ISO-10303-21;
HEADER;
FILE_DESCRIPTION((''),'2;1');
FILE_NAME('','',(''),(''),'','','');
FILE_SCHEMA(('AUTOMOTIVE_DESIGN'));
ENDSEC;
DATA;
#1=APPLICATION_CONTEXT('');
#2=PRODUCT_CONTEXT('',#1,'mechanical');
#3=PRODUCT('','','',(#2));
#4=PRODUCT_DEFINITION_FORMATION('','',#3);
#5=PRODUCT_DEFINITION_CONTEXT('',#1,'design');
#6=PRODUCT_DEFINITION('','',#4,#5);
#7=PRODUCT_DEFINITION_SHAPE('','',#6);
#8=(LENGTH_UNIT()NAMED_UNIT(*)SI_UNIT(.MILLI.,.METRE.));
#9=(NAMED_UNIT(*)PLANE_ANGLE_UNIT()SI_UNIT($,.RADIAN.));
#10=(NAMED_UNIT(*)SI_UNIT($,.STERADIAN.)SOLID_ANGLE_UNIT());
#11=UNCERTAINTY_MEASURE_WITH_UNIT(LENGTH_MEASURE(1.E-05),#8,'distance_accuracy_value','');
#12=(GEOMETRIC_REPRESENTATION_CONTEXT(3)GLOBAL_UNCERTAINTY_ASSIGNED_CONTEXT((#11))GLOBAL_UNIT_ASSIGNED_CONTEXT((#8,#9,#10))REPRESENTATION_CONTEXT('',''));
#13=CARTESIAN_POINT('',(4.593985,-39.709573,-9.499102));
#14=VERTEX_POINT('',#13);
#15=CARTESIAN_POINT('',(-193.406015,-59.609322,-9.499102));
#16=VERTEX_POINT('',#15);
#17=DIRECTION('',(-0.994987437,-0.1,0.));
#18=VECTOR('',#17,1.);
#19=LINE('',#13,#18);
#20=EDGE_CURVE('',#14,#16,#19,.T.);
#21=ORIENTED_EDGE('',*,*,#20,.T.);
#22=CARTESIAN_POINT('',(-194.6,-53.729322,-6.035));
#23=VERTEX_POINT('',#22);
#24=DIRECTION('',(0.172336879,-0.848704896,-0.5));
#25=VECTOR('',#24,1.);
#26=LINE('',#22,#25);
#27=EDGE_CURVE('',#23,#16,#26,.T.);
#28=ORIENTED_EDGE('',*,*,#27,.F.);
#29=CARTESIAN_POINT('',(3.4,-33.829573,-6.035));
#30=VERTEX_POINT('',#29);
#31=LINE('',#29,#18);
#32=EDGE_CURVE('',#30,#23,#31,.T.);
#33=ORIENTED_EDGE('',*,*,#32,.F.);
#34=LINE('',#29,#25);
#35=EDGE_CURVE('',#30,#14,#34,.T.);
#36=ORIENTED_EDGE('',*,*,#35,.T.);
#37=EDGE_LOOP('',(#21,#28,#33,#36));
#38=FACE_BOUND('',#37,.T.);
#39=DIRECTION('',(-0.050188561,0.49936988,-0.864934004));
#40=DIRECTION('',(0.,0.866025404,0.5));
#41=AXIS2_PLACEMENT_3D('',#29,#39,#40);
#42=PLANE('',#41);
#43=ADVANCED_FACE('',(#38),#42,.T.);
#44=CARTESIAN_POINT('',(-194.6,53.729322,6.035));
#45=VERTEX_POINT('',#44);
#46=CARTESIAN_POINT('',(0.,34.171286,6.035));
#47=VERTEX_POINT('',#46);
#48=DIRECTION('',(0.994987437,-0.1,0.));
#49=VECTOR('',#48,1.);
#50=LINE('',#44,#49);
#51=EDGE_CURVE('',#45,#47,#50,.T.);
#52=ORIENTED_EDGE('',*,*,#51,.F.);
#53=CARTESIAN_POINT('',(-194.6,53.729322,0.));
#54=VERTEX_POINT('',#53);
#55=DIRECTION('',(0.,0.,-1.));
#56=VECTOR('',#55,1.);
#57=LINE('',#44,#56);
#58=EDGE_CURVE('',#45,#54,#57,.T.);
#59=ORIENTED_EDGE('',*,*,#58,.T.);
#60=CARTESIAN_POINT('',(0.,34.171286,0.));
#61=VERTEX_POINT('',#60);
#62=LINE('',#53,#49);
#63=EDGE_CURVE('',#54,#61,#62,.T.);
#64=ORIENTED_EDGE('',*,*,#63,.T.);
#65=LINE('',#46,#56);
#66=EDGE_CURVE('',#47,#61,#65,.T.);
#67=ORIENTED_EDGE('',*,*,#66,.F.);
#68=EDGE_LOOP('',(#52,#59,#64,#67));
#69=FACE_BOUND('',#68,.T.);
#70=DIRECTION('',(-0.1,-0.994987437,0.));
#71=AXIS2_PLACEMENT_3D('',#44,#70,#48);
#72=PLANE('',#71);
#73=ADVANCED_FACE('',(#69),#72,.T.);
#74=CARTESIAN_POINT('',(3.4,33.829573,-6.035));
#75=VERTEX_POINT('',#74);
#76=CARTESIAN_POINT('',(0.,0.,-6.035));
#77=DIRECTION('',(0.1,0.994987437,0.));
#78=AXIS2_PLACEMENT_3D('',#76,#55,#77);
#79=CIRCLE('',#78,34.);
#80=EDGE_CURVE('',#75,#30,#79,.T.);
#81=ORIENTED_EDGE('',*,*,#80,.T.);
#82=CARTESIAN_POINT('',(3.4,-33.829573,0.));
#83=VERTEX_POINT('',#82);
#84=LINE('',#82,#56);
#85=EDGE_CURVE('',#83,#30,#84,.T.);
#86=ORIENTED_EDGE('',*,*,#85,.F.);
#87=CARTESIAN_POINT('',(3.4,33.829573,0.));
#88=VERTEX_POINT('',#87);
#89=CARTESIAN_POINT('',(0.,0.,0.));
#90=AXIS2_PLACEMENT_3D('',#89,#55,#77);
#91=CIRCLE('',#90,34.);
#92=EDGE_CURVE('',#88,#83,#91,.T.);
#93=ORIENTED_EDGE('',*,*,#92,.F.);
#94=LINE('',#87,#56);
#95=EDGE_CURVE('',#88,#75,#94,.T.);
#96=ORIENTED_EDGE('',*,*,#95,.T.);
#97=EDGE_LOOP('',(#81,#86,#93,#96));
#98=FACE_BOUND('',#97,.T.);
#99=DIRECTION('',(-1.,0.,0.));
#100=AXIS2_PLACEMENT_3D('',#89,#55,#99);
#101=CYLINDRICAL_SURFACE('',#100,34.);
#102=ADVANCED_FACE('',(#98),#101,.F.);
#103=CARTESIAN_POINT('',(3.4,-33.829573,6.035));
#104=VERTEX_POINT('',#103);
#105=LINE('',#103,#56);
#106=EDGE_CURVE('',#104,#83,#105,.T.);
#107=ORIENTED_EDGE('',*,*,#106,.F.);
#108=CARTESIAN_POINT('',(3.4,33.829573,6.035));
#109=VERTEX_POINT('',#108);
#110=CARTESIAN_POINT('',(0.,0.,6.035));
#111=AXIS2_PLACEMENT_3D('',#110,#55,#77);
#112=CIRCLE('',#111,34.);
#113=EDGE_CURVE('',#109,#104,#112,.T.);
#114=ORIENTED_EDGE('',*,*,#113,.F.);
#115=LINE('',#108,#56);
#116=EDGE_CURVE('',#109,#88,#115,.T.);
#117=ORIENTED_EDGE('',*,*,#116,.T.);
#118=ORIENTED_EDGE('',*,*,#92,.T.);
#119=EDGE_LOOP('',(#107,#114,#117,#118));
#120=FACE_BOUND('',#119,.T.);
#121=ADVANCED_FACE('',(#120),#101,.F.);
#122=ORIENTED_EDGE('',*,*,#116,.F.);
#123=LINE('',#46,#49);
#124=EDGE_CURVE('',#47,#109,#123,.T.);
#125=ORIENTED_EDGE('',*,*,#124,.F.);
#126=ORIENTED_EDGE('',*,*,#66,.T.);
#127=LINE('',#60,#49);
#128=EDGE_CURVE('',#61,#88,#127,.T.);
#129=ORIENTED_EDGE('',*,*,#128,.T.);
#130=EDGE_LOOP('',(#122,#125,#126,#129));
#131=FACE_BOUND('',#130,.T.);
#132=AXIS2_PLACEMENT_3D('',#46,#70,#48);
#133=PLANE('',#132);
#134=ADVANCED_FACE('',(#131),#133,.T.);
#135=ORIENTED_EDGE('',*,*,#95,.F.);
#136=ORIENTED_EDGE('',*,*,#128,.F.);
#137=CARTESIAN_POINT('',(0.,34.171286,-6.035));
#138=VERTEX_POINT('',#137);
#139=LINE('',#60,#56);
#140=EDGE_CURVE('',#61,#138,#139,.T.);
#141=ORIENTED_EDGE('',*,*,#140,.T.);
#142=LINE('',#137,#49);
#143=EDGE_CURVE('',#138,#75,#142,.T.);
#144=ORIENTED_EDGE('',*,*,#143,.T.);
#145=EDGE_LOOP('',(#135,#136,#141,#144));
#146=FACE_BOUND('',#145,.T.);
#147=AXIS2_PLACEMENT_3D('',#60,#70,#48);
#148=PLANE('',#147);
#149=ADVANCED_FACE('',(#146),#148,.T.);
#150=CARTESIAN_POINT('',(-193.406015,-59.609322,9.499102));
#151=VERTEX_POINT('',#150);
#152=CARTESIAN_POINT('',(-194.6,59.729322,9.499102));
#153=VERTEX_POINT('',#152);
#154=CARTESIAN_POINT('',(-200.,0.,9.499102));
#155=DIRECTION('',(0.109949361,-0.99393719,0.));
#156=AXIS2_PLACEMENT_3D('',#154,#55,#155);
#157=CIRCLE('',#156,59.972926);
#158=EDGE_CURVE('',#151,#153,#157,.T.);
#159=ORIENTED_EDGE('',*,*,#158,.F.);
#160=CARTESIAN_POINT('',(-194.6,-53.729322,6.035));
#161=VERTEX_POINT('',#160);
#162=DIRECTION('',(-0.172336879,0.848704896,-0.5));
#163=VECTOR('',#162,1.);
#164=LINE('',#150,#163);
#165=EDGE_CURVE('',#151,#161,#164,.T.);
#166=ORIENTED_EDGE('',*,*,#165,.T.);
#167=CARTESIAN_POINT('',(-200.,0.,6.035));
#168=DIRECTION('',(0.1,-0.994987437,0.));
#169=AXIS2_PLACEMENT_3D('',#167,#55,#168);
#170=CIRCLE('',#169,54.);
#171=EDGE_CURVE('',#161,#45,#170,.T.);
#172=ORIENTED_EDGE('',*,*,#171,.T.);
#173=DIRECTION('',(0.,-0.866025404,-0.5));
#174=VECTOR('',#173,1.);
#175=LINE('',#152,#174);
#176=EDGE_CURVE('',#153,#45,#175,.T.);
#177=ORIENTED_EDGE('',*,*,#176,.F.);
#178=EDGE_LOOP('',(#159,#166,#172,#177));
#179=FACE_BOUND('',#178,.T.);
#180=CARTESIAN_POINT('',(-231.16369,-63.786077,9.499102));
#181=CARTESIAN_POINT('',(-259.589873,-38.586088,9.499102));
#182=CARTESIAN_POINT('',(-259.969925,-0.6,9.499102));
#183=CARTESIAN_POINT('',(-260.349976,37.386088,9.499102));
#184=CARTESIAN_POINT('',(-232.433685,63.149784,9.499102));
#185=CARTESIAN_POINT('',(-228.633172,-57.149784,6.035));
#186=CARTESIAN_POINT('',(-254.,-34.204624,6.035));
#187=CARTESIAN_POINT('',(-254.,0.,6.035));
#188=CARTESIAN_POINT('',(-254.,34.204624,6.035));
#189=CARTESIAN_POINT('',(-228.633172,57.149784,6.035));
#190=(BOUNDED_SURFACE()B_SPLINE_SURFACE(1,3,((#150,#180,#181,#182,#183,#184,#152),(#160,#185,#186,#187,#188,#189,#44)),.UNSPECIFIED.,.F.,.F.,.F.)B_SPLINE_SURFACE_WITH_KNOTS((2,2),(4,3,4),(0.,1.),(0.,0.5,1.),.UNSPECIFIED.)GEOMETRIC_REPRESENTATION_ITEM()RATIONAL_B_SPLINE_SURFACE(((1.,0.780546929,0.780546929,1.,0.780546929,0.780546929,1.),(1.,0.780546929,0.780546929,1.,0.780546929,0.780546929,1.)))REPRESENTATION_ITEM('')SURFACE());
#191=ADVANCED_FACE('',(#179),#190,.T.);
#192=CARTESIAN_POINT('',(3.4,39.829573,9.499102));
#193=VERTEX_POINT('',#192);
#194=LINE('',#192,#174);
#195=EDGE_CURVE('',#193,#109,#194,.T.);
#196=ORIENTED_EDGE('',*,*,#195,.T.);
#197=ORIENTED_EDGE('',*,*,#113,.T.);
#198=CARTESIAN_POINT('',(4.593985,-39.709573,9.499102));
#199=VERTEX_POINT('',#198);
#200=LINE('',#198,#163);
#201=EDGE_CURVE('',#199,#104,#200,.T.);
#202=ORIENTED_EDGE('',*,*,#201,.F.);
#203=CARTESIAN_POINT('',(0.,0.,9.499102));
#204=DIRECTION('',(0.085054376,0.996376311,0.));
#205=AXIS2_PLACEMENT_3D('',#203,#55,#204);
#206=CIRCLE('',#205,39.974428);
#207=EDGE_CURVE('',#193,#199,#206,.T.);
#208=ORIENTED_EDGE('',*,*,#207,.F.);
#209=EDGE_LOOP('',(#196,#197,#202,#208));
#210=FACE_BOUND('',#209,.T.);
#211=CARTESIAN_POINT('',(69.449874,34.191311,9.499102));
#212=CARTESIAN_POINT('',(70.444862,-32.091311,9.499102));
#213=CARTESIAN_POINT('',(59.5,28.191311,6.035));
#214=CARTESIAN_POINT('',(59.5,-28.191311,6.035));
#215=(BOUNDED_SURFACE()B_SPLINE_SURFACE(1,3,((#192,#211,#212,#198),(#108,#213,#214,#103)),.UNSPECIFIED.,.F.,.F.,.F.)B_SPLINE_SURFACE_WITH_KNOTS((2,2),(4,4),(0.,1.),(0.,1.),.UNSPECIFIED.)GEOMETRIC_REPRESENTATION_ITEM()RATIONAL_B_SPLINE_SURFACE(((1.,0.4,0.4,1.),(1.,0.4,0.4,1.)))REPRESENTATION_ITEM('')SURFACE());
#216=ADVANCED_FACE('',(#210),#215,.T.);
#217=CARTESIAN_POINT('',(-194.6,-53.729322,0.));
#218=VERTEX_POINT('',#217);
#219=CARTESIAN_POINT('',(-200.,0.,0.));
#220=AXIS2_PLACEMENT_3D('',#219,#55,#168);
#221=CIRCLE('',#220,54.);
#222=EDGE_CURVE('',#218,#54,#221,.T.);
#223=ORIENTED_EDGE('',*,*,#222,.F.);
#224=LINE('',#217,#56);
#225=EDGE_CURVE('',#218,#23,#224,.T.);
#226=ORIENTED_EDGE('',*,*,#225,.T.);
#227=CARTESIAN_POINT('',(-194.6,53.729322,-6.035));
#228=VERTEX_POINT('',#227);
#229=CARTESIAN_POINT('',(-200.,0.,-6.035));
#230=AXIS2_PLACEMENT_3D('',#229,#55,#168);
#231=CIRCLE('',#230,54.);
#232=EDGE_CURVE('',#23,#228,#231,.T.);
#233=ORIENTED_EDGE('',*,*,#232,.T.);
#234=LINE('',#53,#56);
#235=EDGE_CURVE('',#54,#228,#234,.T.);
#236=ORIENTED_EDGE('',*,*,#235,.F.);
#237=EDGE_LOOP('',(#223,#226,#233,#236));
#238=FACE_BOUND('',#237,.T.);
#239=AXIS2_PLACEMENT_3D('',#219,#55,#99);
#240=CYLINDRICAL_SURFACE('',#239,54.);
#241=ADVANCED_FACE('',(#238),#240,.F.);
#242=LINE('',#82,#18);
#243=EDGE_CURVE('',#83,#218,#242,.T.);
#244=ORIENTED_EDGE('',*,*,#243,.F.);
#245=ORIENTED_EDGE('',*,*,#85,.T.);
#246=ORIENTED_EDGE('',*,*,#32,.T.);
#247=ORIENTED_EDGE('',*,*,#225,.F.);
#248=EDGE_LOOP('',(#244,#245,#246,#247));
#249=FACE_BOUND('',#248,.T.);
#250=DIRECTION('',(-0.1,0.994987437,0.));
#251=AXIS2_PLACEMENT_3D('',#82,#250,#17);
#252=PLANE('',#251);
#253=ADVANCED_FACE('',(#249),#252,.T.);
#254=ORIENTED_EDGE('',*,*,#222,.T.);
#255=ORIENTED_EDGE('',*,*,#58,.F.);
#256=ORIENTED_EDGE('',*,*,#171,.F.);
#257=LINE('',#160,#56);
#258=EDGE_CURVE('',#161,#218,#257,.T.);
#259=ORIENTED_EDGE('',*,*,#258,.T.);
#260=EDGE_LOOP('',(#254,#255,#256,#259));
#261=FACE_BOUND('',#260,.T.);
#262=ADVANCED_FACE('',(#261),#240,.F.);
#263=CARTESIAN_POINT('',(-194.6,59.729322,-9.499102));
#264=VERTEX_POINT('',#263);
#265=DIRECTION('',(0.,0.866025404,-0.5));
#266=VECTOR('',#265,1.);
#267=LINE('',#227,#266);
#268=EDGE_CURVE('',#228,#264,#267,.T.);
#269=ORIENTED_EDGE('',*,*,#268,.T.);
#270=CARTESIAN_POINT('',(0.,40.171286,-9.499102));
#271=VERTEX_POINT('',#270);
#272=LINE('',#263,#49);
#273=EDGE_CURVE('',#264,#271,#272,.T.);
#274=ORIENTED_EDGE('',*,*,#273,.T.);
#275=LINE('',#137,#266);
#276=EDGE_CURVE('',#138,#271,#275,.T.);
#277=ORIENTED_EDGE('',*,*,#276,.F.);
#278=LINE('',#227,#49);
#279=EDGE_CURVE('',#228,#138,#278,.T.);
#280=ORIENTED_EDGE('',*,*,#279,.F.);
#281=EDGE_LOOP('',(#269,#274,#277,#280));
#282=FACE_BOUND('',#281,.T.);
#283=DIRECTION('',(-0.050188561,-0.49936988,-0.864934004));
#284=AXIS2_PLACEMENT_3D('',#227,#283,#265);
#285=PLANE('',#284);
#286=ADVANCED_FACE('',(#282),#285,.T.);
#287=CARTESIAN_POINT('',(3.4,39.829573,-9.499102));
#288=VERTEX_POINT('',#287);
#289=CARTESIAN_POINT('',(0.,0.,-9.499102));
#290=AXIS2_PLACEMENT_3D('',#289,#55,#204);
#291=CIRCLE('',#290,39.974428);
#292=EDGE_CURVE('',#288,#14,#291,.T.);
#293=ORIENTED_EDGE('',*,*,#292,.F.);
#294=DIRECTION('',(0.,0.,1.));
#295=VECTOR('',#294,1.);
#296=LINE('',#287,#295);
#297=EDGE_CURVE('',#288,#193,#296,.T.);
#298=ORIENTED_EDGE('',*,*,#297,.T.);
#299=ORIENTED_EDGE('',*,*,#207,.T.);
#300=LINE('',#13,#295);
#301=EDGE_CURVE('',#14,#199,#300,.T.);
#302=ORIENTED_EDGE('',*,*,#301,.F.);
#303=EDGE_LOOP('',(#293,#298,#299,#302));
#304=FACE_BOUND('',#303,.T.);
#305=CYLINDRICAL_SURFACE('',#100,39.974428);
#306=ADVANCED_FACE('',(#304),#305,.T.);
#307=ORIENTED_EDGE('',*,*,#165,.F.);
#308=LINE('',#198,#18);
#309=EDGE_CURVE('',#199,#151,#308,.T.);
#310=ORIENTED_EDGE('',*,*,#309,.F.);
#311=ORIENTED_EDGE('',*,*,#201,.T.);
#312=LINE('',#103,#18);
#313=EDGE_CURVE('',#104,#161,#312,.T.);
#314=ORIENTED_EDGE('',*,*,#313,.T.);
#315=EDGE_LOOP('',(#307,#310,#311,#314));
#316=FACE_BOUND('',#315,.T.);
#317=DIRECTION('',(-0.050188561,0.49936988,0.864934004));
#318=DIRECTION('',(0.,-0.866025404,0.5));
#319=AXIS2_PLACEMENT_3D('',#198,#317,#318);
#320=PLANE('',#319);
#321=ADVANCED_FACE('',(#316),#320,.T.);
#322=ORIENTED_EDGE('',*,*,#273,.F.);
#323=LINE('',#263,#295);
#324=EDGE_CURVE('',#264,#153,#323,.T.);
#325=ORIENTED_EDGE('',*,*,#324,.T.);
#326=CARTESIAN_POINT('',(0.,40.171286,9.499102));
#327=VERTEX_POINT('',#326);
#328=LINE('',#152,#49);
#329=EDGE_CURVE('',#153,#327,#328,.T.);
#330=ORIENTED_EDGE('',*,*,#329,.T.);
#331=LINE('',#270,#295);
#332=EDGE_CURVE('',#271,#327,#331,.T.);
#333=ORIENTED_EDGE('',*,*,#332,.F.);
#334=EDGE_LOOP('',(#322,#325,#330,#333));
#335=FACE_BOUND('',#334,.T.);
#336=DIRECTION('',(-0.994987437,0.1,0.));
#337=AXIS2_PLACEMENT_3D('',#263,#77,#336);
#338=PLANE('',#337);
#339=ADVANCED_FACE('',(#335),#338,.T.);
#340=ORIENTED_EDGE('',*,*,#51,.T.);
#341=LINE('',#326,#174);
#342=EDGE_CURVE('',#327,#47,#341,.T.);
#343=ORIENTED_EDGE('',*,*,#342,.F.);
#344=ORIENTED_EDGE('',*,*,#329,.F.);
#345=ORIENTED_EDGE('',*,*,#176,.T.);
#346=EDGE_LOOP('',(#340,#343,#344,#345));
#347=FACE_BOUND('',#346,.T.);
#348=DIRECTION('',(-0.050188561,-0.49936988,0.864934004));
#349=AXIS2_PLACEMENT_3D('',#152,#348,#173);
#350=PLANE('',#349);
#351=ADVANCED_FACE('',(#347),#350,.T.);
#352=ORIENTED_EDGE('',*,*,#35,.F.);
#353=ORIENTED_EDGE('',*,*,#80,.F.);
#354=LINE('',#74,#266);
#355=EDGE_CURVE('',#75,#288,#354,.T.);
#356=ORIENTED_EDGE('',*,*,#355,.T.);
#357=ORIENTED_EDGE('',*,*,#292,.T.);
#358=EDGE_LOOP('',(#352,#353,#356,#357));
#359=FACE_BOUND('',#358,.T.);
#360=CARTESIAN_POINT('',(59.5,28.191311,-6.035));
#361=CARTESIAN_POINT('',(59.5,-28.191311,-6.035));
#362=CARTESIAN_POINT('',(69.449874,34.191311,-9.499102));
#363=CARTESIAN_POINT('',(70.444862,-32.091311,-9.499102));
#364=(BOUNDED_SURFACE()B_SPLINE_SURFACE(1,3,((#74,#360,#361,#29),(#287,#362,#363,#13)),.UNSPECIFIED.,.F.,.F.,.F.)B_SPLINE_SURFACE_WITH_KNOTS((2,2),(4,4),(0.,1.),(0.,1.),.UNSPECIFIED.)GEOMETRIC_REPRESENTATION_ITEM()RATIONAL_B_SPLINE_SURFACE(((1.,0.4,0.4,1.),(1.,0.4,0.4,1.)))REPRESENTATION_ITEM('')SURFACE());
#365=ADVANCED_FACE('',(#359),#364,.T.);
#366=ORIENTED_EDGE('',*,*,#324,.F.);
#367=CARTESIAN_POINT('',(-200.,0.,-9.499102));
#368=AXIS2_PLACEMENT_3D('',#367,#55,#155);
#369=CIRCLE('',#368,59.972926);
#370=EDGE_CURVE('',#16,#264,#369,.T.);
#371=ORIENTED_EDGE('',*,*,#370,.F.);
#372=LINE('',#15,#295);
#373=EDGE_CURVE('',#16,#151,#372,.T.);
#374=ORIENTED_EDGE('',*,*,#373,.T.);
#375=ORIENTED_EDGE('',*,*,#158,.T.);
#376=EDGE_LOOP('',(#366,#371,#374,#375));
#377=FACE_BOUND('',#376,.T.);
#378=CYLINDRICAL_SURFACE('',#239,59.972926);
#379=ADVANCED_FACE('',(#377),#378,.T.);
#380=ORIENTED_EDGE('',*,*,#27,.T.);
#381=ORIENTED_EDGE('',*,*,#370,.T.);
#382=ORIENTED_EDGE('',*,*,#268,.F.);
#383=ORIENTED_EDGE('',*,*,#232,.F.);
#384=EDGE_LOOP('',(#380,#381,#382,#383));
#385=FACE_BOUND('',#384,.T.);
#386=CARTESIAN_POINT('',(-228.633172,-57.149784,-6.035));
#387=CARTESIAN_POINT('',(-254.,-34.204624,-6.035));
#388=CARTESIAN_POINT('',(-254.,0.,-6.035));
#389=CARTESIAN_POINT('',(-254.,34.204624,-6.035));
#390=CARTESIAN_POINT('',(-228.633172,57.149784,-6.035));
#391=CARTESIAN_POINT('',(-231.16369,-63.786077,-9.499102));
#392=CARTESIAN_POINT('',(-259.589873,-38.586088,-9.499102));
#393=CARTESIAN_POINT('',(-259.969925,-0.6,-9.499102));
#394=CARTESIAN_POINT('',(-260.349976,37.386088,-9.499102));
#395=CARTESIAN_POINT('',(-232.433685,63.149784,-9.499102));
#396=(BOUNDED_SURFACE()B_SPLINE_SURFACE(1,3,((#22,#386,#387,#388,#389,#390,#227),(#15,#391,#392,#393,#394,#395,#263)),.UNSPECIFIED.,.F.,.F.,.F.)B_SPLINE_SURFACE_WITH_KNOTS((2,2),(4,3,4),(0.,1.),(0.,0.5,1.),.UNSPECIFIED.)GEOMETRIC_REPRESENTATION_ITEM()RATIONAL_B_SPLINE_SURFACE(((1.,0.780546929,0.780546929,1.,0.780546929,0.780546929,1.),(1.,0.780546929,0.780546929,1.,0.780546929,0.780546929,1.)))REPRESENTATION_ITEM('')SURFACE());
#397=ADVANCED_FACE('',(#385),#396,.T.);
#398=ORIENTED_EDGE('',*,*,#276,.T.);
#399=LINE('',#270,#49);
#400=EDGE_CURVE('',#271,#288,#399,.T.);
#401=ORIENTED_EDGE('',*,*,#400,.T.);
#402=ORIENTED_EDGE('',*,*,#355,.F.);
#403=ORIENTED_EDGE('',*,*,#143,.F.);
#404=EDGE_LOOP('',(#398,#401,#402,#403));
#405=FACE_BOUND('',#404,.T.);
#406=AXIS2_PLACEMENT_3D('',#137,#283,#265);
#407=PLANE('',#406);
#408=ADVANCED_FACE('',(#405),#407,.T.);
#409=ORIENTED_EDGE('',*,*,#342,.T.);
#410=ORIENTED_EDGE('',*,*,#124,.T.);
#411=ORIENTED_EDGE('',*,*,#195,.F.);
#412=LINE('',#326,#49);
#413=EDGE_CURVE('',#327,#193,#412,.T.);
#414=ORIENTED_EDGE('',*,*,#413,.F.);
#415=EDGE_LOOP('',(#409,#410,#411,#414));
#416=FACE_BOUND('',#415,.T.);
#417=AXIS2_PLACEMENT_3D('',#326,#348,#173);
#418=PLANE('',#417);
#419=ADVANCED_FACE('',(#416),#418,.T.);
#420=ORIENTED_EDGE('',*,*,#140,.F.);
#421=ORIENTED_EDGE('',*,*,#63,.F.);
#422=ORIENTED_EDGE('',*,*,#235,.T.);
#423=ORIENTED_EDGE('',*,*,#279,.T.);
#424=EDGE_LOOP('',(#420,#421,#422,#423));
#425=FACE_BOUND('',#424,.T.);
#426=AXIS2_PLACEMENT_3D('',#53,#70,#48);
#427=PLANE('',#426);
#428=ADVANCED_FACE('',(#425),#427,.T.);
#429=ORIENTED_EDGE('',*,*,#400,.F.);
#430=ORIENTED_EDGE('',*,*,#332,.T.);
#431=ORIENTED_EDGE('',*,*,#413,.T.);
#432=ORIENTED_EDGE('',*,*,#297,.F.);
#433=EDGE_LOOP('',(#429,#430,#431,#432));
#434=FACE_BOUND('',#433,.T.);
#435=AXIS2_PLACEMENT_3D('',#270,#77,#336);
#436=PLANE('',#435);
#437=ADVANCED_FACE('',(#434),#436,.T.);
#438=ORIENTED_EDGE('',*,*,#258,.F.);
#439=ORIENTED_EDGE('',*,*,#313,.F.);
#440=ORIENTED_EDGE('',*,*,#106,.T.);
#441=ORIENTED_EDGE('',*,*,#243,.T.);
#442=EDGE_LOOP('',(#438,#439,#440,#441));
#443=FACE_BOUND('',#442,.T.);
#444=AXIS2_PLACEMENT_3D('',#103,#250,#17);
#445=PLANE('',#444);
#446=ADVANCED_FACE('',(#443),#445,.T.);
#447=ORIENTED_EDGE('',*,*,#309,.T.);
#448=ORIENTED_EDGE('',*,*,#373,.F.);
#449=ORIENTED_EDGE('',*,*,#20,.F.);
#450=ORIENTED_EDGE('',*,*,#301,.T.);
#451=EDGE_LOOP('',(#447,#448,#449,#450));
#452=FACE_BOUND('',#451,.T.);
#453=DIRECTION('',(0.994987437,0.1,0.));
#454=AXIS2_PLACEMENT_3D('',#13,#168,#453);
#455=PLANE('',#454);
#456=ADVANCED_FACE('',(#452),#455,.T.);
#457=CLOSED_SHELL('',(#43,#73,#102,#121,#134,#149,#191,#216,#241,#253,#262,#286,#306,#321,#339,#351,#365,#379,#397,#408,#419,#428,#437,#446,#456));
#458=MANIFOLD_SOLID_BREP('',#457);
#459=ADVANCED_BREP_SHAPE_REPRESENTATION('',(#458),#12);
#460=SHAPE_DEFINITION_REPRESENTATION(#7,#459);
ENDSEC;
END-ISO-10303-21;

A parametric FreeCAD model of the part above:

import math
import FreeCAD as App
import Part
import Sketcher
Q = App.Units.Quantity

doc = App.newDocument("Part")
body = doc.addObject("PartDesign::Body", "Body")

sketch1 = doc.addObject("Sketcher::SketchObject", "Sketch")
body.addObject(sketch1)
sketch1.AttachmentSupport = (doc.YZ_Plane, [""])
sketch1.MapMode = "FlatFace"
sketch1.addGeometry([
    Part.LineSegment(App.Vector(34, -6, 0), App.Vector(40, -9, 0)),
    Part.LineSegment(App.Vector(40, -9, 0), App.Vector(40, 9, 0)),
    Part.LineSegment(App.Vector(40, 9, 0), App.Vector(34, 6, 0)),
    Part.LineSegment(App.Vector(34, 6, 0), App.Vector(34, -6, 0)),
], False)
sketch1.addConstraint([
    Sketcher.Constraint("Coincident", 0, 2, 1, 1),
    Sketcher.Constraint("Coincident", 1, 2, 2, 1),
    Sketcher.Constraint("Coincident", 2, 2, 3, 1),
    Sketcher.Constraint("Coincident", 3, 2, 0, 1),
    Sketcher.Constraint("Vertical", 1),
    Sketcher.Constraint("Vertical", 3),
    Sketcher.Constraint("Equal", 0, 2),
    Sketcher.Constraint("Angle", 0, Q("-30 deg")),
    Sketcher.Constraint("DistanceX", 2, 2, 1, 2, 6.0),
    Sketcher.Constraint("DistanceY", 3, 2, 3, 1, 12.07),
    Sketcher.Constraint("DistanceY", -1, 1, 2, 2, 6.035),
    Sketcher.Constraint("DistanceX", -1, 1, 0, 2, 40.171286),
])

sketch2 = doc.addObject("Sketcher::SketchObject", "Sketch001")
body.addObject(sketch2)
sketch2.AttachmentSupport = (doc.XY_Plane, [""])
sketch2.MapMode = "FlatFace"
sketch2.addGeometry([
    Part.LineSegment(App.Vector(3, -34, 0), App.Vector(-195, -54, 0)),
    Part.ArcOfCircle(Part.Circle(App.Vector(-200, 0, 0), App.Vector(0, 0, 1), 54), math.radians(84), math.radians(276)),
    Part.LineSegment(App.Vector(-195, 54, 0), App.Vector(3, 34, 0)),
    Part.ArcOfCircle(Part.Circle(App.Vector(0, 0, 0), App.Vector(0, 0, 1), 34), math.radians(-84), math.radians(84)),
], False)
sketch2.addConstraint([
    Sketcher.Constraint("Tangent", 0, 2, 1, 2),
    Sketcher.Constraint("Tangent", 1, 1, 2, 1),
    Sketcher.Constraint("Tangent", 2, 2, 3, 2),
    Sketcher.Constraint("Tangent", 3, 1, 0, 1),
    Sketcher.Constraint("Coincident", 3, 3, -1, 1),
    Sketcher.Constraint("PointOnObject", 1, 3, -1),
    Sketcher.Constraint("Radius", 1, 54.0),
    Sketcher.Constraint("Radius", 3, 34.0),
    Sketcher.Constraint("DistanceX", 1, 3, -1, 1, 200.0),
])
doc.recompute()

additivepipe = doc.addObject("PartDesign::AdditivePipe", "AdditivePipe")
body.addObject(additivepipe)
additivepipe.Profile = sketch1
additivepipe.Spine = (sketch2, ["Edge1", "Edge2", "Edge3", "Edge4"])

doc.recompute()
